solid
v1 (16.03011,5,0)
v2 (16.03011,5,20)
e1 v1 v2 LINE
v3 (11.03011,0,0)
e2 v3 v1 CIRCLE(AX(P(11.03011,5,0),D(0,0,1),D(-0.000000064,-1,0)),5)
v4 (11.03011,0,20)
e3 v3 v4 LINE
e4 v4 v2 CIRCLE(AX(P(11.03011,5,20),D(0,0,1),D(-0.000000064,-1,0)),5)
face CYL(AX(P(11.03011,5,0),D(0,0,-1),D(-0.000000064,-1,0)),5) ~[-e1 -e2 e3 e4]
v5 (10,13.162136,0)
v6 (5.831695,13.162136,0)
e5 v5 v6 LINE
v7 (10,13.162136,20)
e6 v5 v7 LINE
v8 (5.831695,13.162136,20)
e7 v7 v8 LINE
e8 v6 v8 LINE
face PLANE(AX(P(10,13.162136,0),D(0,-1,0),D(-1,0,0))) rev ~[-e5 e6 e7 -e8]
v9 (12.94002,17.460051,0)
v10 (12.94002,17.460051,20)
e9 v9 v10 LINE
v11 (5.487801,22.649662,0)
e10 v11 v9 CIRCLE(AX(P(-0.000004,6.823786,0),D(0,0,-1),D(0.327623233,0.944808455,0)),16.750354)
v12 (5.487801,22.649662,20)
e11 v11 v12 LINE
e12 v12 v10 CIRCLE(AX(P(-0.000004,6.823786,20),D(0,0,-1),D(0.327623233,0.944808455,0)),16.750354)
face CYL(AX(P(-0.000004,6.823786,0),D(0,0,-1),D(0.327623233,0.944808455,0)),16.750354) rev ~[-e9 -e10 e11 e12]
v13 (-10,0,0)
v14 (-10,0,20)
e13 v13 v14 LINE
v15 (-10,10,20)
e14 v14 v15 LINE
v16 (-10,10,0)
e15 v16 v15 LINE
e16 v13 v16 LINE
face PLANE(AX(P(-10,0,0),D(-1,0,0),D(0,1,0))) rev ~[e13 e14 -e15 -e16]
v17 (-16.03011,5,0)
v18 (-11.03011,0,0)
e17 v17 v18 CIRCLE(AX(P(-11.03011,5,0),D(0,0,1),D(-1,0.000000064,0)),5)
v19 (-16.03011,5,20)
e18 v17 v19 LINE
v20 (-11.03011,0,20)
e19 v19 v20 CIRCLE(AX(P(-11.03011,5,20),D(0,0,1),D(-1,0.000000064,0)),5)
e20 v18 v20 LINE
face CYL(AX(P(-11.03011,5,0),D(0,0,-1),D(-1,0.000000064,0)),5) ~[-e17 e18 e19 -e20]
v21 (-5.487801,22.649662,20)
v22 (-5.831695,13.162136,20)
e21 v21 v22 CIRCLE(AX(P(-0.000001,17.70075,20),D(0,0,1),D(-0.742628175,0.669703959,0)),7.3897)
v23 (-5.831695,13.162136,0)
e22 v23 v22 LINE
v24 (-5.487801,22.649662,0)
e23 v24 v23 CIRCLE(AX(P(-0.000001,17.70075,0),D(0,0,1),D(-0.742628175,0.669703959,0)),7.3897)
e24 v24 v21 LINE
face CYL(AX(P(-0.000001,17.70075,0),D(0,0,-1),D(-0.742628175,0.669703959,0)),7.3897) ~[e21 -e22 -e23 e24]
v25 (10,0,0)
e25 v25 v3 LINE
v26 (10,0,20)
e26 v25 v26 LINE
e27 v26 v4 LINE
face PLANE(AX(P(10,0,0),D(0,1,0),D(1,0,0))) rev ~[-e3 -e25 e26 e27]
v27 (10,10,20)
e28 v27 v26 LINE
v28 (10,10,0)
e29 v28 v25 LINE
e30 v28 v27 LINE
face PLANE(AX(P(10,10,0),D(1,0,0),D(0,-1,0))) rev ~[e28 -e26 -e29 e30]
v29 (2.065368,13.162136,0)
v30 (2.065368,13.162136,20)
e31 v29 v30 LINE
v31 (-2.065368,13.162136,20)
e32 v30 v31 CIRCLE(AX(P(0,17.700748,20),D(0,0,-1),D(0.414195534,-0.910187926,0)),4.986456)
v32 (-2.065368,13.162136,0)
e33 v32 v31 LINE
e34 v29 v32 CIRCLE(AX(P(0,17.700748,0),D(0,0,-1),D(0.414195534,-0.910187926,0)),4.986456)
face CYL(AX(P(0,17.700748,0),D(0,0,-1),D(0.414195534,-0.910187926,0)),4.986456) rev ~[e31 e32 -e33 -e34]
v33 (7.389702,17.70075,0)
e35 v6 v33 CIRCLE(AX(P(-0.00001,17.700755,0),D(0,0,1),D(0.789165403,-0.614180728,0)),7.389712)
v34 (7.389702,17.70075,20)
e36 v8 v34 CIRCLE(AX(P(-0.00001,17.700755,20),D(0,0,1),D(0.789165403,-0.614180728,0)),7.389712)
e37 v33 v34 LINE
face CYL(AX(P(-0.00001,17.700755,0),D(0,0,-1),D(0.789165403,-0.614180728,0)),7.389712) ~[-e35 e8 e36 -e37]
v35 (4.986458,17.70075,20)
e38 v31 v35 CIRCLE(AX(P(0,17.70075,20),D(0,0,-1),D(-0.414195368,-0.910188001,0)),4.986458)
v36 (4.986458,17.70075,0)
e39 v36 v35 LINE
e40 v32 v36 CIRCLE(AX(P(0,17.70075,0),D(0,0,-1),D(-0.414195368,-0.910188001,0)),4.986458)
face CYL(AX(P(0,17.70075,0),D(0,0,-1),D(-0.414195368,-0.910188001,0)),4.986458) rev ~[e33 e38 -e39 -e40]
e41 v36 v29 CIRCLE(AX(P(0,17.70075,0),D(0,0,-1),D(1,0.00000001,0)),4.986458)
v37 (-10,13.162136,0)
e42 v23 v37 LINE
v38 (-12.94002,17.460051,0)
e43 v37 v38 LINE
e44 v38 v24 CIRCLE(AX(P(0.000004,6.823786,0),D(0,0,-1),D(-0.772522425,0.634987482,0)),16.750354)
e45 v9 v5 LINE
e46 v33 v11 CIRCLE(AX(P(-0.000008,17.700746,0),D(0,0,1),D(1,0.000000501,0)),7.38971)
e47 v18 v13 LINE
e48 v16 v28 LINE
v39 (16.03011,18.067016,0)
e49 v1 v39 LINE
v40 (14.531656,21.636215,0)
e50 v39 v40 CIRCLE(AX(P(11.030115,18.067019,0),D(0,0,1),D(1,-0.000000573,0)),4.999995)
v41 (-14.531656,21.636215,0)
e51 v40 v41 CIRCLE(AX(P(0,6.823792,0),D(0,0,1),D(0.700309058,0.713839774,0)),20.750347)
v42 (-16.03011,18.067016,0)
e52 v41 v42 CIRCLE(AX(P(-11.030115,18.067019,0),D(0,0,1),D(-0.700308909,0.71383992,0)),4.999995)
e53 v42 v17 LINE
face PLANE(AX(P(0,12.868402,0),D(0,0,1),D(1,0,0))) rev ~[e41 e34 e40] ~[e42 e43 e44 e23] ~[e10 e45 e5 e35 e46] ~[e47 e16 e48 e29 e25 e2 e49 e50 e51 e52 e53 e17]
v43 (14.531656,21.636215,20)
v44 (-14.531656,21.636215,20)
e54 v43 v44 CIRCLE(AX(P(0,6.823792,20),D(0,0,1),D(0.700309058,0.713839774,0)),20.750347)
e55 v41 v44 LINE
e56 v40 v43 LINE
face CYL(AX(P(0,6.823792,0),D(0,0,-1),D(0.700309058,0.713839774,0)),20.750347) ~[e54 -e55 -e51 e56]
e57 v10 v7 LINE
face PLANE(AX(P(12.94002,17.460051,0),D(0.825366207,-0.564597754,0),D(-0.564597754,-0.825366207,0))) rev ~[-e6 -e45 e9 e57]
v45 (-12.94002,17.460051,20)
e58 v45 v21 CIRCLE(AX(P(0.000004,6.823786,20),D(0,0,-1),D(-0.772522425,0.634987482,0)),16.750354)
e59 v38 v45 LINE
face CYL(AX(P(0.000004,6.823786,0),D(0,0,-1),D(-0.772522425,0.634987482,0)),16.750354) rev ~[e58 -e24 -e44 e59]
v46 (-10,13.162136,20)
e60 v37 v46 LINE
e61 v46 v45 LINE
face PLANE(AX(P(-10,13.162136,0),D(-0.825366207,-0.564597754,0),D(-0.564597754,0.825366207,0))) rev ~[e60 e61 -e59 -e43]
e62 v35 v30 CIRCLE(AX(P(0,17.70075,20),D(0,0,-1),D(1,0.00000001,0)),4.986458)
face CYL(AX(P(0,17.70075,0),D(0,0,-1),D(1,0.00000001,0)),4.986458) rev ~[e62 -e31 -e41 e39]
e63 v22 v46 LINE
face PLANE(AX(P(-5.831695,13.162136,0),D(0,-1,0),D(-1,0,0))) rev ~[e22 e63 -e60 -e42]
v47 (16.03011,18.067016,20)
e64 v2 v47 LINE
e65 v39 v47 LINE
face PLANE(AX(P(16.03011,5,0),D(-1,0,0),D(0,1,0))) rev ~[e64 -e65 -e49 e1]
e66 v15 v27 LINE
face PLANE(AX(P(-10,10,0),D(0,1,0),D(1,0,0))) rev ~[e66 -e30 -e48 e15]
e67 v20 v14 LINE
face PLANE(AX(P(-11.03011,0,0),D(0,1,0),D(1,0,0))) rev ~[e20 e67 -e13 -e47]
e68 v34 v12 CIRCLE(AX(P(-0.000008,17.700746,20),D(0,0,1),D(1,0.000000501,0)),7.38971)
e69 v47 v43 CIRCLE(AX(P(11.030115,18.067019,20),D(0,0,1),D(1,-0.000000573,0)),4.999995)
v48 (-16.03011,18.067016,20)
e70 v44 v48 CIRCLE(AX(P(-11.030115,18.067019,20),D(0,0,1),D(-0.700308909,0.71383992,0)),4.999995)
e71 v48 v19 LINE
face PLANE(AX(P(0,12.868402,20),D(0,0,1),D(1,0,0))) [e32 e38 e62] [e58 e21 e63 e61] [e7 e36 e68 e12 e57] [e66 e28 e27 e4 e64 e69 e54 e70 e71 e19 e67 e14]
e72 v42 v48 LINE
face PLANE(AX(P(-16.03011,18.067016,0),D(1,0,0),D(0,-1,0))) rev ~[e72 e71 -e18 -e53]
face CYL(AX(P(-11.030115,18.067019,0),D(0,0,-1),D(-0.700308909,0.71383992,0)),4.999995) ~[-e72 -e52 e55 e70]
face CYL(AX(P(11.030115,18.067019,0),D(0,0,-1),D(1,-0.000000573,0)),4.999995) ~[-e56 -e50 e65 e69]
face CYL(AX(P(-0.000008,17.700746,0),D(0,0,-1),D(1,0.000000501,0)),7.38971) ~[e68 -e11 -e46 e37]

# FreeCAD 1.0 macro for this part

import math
import FreeCAD as App
import Part
import Sketcher

V = App.Vector

doc = App.newDocument("Part")
params = doc.addObject("Spreadsheet::Sheet", "Params")
for row, (alias, value) in enumerate([
    ("sketch1_radius", "5 mm"),
    ("sketch1_width", "20 mm"),
    ("sketch1_height", "10 mm"),
    ("pad1_length", "20 mm"),
], start=1):
    params.set(f"A{row}", alias)
    params.set(f"B{row}", "=" + value)
    params.setAlias(f"B{row}", alias)

body = doc.addObject("PartDesign::Body", "Body")

# Sketch on XY plane
sketch1 = body.newObject("Sketcher::SketchObject", "Sketch")
sketch1.AttachmentSupport = (doc.getObject("XY_Plane"), [""])
sketch1.MapMode = "FlatFace"
sketch1.addGeometry([
    Part.LineSegment(V(10, 10, 0), V(10, 0, 0)),  # 0
    Part.LineSegment(V(10, 0, 0), V(11.03011, 0, 0)),  # 1
    Part.ArcOfCircle(Part.Circle(V(11.03011, 5, 0), V(0, 0, 1), 5), math.radians(-90.000004), math.radians(0.000004)),  # 2
    Part.LineSegment(V(16.03011, 5, 0), V(16.03011, 18.067016, 0)),  # 3
    Part.ArcOfCircle(Part.Circle(V(11.030115, 18.067019, 0), V(0, 0, 1), 4.999995), math.radians(-0.000033), math.radians(45.548207)),  # 4
    Part.ArcOfCircle(Part.Circle(V(0, 6.823792, 0), V(0, 0, 1), 20.750347), math.radians(45.548195), math.radians(134.451805)),  # 5
    Part.ArcOfCircle(Part.Circle(V(-11.030115, 18.067019, 0), V(0, 0, 1), 4.999995), math.radians(134.451793), math.radians(180.000033)),  # 6
    Part.LineSegment(V(-16.03011, 18.067016, 0), V(-16.03011, 5, 0)),  # 7
    Part.ArcOfCircle(Part.Circle(V(-11.03011, 5, 0), V(0, 0, 1), 5), math.radians(179.999996), math.radians(270.000004)),  # 8
    Part.LineSegment(V(-11.03011, 0, 0), V(-10, 0, 0)),  # 9
    Part.LineSegment(V(-10, 0, 0), V(-10, 10, 0)),  # 10
    Part.LineSegment(V(-10, 10, 0), V(10, 10, 0)),  # 11
    Part.LineSegment(V(10, 13.162136, 0), V(5.831695, 13.162136, 0)),  # 12
    Part.ArcOfCircle(Part.Circle(V(-0.00001, 17.700755, 0), V(0, 0, 1), 7.389712), math.radians(-37.892415), math.radians(-0.000038)),  # 13
    Part.ArcOfCircle(Part.Circle(V(-0.000008, 17.700746, 0), V(0, 0, 1), 7.38971), math.radians(0.000029), math.radians(42.044195)),  # 14
    Part.ArcOfCircle(Part.Circle(V(-0.000004, 6.823786, 0), V(0, 0, 1), 16.750354), math.radians(39.419056), math.radians(70.875421)),  # 15
    Part.LineSegment(V(12.94002, 17.460051, 0), V(10, 13.162136, 0)),  # 16
    Part.ArcOfCircle(Part.Circle(V(0, 17.700748, 0), V(0, 0, 1), 4.986456), math.radians(-114.468666), math.radians(-65.531334)),  # 17
    Part.ArcOfCircle(Part.Circle(V(0, 17.70075, 0), V(0, 0, 1), 4.986458), math.radians(-0.000004), math.radians(245.531345)),  # 18
    Part.ArcOfCircle(Part.Circle(V(0, 17.70075, 0), V(0, 0, 1), 4.986458), math.radians(-65.531345), math.radians(0.000001)),  # 19
    Part.LineSegment(V(-5.831695, 13.162136, 0), V(-10, 13.162136, 0)),  # 20
    Part.LineSegment(V(-10, 13.162136, 0), V(-12.94002, 17.460051, 0)),  # 21
    Part.ArcOfCircle(Part.Circle(V(0.000004, 6.823786, 0), V(0, 0, 1), 16.750354), math.radians(109.124579), math.radians(140.580944)),  # 22
    Part.ArcOfCircle(Part.Circle(V(-0.000001, 17.70075, 0), V(0, 0, 1), 7.3897), math.radians(137.95578), math.radians(217.892442)),  # 23
], False)
sketch1.addConstraint([
    Sketcher.Constraint("Coincident", 0, 2, 1, 1),
    Sketcher.Constraint("Tangent", 1, 2, 2, 1),
    Sketcher.Constraint("Tangent", 2, 2, 3, 1),
    Sketcher.Constraint("Tangent", 3, 2, 4, 1),
    Sketcher.Constraint("Tangent", 4, 2, 5, 1),
    Sketcher.Constraint("Tangent", 5, 2, 6, 1),
    Sketcher.Constraint("Tangent", 6, 2, 7, 1),
    Sketcher.Constraint("Tangent", 7, 2, 8, 1),
    Sketcher.Constraint("Tangent", 8, 2, 9, 1),
    Sketcher.Constraint("Coincident", 9, 2, 10, 1),
    Sketcher.Constraint("Coincident", 10, 2, 11, 1),
    Sketcher.Constraint("Coincident", 11, 2, 0, 1),
    Sketcher.Constraint("Coincident", 12, 2, 13, 1),
    Sketcher.Constraint("Tangent", 13, 2, 14, 1),
    Sketcher.Constraint("Coincident", 14, 2, 15, 2),
    Sketcher.Constraint("Coincident", 15, 1, 16, 1),
    Sketcher.Constraint("Coincident", 16, 2, 12, 1),
    Sketcher.Constraint("Tangent", 17, 1, 18, 2),
    Sketcher.Constraint("Tangent", 18, 1, 19, 2),
    Sketcher.Constraint("Tangent", 19, 1, 17, 2),
    Sketcher.Constraint("Coincident", 20, 2, 21, 1),
    Sketcher.Constraint("Coincident", 21, 2, 22, 2),
    Sketcher.Constraint("Coincident", 22, 1, 23, 1),
    Sketcher.Constraint("Coincident", 23, 2, 20, 1),
    Sketcher.Constraint("Vertical", 0),
    Sketcher.Constraint("Horizontal", 1),
    Sketcher.Constraint("Vertical", 3),
    Sketcher.Constraint("Vertical", 7),
    Sketcher.Constraint("Horizontal", 9),
    Sketcher.Constraint("Vertical", 10),
    Sketcher.Constraint("Horizontal", 11),
    Sketcher.Constraint("Horizontal", 12),
    Sketcher.Constraint("Horizontal", 20),
    Sketcher.Constraint("Coincident", 15, 3, 5, 3),
    Sketcher.Constraint("Coincident", 17, 3, 14, 3),
    Sketcher.Constraint("Coincident", 22, 3, 5, 3),
    Sketcher.Constraint("Coincident", 23, 3, 14, 3),
    Sketcher.Constraint("Equal", 4, 6),
    Sketcher.Constraint("Equal", 2, 8),
    Sketcher.Constraint("Equal", 15, 22),
    Sketcher.Constraint("Symmetric", 1, 2, 8, 2, -1, 1),
    Sketcher.Constraint("Symmetric", 0, 2, 9, 2, -2),
    Sketcher.Constraint("Symmetric", 17, 1, 19, 1, -2),
    Sketcher.Constraint("Symmetric", 16, 2, 20, 2, -2),
    Sketcher.Constraint("Symmetric", 15, 1, 21, 2, -2),
    Sketcher.Constraint("Horizontal", 23, 3, 13, 2),
    Sketcher.Constraint("Horizontal", 16, 2, 17, 1),
    Sketcher.Constraint("Horizontal", 13, 2, 18, 1),
    Sketcher.Constraint("Horizontal", 14, 2, 22, 1),
    Sketcher.Constraint("Vertical", 11, 2, 16, 2),
    Sketcher.Constraint("Equal", 12, 20),
    Sketcher.Constraint("Radius", 2, 5.0),
    Sketcher.Constraint("DistanceX", 11, 1, 11, 2, 20.0),
    Sketcher.Constraint("DistanceY", 0, 2, 0, 1, 10.0),
    Sketcher.Constraint("Radius", 23, 7.3897),
    Sketcher.Constraint("Radius", 18, 4.986458),
    Sketcher.Constraint("Radius", 4, 4.999995),
    Sketcher.Constraint("Radius", 5, 20.750347),
    Sketcher.Constraint("Radius", 15, 16.750354),
    Sketcher.Constraint("DistanceX", 1, 1, 1, 2, 1.03011),
    Sketcher.Constraint("DistanceX", -1, 1, 14, 2, 5.487801),
    Sketcher.Constraint("DistanceY", 15, 1, 13, 2, 0.240699),
    Sketcher.Constraint("DistanceX", 12, 2, 12, 1, 4.168305),
    Sketcher.Constraint("DistanceY", 3, 1, 3, 2, 13.067016),
])
sketch1.setExpression("Constraints[51]", "Params.sketch1_radius")
sketch1.setExpression("Constraints[52]", "Params.sketch1_width")
sketch1.setExpression("Constraints[53]", "Params.sketch1_height")
pad1 = body.newObject("PartDesign::Pad", "Pad")
pad1.Profile = sketch1
pad1.setExpression("Length", "Params.pad1_length")

doc.recompute()
